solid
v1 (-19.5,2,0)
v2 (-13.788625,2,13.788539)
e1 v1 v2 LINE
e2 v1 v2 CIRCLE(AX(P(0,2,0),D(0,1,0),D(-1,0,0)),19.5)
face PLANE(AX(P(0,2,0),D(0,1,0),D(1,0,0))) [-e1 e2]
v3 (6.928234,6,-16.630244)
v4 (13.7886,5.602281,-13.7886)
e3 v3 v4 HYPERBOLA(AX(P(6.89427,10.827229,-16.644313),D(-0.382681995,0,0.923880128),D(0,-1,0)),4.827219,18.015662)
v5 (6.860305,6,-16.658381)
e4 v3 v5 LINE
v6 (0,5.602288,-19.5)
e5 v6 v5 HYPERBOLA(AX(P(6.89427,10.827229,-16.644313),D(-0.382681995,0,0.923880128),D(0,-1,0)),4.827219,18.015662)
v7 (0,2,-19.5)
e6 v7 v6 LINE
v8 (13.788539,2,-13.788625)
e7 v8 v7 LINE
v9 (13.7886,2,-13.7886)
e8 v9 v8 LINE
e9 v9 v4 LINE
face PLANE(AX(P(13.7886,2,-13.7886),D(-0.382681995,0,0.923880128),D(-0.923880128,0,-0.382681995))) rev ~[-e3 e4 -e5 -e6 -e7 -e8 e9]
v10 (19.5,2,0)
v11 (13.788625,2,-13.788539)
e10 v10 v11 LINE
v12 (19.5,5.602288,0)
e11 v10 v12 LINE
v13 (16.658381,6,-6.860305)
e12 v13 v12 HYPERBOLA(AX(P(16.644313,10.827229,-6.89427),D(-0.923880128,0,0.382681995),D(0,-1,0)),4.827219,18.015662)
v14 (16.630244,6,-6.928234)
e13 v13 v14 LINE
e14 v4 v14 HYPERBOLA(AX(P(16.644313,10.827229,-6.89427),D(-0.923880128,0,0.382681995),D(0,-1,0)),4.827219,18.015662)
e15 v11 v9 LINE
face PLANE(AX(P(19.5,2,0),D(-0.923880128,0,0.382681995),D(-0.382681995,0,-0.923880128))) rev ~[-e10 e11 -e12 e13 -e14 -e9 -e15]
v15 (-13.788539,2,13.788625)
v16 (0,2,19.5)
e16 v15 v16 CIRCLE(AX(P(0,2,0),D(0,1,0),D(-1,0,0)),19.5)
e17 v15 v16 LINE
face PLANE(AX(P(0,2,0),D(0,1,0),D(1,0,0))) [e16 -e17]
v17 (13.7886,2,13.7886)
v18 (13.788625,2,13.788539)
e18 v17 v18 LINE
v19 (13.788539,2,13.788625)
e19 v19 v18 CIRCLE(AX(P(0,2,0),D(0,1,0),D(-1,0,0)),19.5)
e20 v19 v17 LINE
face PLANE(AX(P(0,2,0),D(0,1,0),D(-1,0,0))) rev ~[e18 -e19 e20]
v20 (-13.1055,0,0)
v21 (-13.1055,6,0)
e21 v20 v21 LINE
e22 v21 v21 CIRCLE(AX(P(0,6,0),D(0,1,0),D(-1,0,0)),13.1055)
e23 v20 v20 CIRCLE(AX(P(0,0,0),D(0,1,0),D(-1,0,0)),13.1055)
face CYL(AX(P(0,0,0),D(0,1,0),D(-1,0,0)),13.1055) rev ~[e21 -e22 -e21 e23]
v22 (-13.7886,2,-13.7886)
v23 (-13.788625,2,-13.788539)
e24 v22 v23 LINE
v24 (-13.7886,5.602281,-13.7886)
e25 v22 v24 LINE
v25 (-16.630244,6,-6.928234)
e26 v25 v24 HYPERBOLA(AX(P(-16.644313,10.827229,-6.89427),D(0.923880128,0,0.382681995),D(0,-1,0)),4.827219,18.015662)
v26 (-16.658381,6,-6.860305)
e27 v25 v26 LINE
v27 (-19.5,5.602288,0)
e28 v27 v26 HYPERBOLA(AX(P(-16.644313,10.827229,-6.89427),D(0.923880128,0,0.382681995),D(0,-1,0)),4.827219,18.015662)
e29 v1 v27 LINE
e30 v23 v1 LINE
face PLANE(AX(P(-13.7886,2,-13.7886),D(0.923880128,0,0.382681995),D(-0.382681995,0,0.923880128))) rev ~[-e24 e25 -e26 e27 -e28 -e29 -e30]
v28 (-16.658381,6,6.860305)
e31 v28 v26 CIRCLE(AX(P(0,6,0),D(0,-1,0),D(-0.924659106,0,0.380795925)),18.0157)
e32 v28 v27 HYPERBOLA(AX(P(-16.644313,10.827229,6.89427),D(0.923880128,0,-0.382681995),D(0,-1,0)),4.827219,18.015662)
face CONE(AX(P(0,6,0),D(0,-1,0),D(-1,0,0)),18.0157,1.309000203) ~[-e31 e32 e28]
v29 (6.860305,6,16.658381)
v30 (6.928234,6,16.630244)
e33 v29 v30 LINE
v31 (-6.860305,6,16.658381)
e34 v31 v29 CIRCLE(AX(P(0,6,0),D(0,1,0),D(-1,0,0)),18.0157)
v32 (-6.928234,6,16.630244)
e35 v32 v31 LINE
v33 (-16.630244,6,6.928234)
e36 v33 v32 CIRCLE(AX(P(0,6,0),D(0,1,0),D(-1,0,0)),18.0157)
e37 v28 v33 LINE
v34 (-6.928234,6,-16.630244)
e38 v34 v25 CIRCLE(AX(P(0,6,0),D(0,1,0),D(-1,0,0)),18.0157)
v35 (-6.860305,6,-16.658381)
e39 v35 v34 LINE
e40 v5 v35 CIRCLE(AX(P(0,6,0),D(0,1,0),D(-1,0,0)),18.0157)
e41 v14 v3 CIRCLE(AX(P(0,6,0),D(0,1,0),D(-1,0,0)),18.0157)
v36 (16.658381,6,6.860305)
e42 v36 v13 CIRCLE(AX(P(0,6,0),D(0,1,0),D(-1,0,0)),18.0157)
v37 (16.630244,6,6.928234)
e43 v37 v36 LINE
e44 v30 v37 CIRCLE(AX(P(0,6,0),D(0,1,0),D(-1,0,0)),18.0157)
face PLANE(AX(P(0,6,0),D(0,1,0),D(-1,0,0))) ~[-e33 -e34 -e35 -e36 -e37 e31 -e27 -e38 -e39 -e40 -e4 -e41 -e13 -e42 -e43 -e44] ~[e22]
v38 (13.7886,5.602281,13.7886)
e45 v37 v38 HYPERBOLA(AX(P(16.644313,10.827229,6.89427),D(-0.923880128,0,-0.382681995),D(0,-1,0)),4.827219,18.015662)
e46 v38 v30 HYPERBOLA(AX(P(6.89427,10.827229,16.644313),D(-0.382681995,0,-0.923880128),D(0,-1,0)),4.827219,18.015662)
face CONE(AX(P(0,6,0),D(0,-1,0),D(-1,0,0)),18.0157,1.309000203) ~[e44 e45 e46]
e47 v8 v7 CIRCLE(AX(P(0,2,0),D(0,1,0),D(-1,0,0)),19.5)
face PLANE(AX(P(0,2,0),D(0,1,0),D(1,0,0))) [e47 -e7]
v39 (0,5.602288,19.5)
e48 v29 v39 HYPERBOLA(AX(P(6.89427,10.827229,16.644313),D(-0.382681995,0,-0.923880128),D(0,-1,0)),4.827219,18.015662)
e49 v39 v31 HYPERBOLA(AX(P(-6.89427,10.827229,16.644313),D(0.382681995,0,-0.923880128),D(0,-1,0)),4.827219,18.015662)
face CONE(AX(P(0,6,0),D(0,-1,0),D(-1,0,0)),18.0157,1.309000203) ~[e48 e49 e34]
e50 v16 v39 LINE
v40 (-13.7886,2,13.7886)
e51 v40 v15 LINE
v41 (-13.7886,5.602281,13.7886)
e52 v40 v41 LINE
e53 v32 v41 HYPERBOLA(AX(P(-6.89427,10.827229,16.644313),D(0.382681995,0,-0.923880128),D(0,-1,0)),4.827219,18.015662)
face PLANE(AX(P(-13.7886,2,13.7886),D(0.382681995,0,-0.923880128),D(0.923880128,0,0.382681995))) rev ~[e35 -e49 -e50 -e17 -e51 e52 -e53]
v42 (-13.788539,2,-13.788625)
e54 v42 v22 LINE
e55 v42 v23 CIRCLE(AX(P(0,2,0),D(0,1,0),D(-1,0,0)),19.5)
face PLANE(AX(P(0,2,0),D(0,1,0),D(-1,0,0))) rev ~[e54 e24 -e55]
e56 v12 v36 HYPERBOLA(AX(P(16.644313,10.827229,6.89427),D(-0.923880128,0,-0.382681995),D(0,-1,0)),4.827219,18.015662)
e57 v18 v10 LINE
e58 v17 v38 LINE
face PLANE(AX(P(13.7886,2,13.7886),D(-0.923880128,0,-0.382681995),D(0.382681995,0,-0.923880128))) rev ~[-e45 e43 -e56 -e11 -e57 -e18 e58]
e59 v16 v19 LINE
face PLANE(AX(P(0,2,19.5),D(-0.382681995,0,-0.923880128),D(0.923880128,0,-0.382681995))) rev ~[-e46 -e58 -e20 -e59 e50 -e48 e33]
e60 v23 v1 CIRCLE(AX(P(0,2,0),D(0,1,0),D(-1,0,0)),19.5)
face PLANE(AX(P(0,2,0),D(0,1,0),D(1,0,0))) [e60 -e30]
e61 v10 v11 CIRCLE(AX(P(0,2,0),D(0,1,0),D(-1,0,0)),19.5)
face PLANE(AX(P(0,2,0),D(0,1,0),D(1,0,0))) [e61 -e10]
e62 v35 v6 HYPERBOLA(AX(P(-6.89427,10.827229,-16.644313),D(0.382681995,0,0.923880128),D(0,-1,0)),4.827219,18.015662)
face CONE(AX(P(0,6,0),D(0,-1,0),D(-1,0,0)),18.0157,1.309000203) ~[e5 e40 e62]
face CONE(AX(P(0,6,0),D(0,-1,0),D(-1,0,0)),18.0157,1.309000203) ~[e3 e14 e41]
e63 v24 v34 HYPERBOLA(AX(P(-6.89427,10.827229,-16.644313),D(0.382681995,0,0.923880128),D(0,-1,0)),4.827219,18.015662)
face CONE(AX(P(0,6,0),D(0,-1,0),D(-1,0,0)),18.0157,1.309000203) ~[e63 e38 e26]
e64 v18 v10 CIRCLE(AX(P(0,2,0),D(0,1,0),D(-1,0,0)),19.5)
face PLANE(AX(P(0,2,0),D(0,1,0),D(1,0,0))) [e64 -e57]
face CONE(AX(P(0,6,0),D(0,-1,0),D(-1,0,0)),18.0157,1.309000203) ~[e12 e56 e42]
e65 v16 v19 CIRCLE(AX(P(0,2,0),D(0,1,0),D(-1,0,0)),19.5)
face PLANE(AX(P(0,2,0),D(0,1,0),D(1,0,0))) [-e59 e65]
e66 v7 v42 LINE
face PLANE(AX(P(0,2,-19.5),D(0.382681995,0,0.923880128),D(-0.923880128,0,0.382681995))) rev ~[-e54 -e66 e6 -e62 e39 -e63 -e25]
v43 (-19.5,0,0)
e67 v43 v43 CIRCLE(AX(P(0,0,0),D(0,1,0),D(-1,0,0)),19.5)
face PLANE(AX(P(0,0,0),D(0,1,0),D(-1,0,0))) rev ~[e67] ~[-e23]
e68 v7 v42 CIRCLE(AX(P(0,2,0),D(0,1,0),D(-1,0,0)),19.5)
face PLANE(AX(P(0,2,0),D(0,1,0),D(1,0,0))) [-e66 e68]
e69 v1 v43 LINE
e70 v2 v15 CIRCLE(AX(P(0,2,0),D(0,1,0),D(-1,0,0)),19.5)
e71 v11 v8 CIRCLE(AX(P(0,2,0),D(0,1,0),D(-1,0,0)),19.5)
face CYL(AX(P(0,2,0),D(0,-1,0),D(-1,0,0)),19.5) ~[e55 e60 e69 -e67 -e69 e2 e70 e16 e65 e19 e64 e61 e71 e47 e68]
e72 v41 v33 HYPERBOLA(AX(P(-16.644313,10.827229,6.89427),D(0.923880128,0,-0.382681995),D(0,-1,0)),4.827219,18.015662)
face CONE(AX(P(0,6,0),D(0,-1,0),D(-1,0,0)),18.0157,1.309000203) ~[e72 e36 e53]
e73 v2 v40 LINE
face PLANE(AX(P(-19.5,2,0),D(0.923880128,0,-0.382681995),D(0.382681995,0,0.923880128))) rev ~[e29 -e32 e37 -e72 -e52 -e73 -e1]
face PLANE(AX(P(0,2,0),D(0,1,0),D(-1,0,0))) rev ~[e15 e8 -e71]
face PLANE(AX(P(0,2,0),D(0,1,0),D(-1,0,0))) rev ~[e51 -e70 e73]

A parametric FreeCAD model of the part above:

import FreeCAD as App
import Part
import Sketcher

V = App.Vector
Q = App.Units.Quantity

doc = App.newDocument("Part")
params = doc.addObject("Spreadsheet::Sheet", "Params")
for row, (alias, value) in enumerate([
    ("sketch1_height", "2 mm"),
    ("sketch1_height2", "6 mm"),
    ("sketch1_width", "3.9 mm"),
    ("revolution_angle", "360 deg"),
    ("sketch2_diameter", "100 mm"),
    ("pocket1_length", "4 mm"),
], start=1):
    params.set(f"A{row}", alias)
    params.set(f"B{row}", "=" + value)
    params.setAlias(f"B{row}", alias)

body = doc.addObject("PartDesign::Body", "Body")

# Sketch on XY plane
sketch1 = body.newObject("Sketcher::SketchObject", "Sketch")
sketch1.AttachmentSupport = (doc.getObject("XY_Plane"), [""])
sketch1.MapMode = "FlatFace"
sketch1.addGeometry(Part.LineSegment(V(-18, 6, 0), V(-23.4, 4.6, 0)), False)
sketch1.addGeometry(Part.LineSegment(V(-23.4, 4.6, 0), V(-23.4, 2, 0)), False)
sketch1.addGeometry(Part.LineSegment(V(-23.4, 2, 0), V(-19.5, 2, 0)), False)
sketch1.addGeometry(Part.LineSegment(V(-19.5, 2, 0), V(-19.5, 0, 0)), False)
sketch1.addGeometry(Part.LineSegment(V(-19.5, 0, 0), V(-13.1, 0, 0)), False)
sketch1.addGeometry(Part.LineSegment(V(-13.1, 0, 0), V(-13.1, 6, 0)), False)
sketch1.addGeometry(Part.LineSegment(V(-13.1, 6, 0), V(-18, 6, 0)), False)
sketch1.addConstraint(Sketcher.Constraint("Coincident", 0, 2, 1, 1))
sketch1.addConstraint(Sketcher.Constraint("Coincident", 1, 2, 2, 1))
sketch1.addConstraint(Sketcher.Constraint("Coincident", 2, 2, 3, 1))
sketch1.addConstraint(Sketcher.Constraint("Coincident", 3, 2, 4, 1))
sketch1.addConstraint(Sketcher.Constraint("Coincident", 4, 2, 5, 1))
sketch1.addConstraint(Sketcher.Constraint("Coincident", 5, 2, 6, 1))
sketch1.addConstraint(Sketcher.Constraint("Coincident", 6, 2, 0, 1))
sketch1.addConstraint(Sketcher.Constraint("Vertical", 1))
sketch1.addConstraint(Sketcher.Constraint("Horizontal", 2))
sketch1.addConstraint(Sketcher.Constraint("Vertical", 3))
sketch1.addConstraint(Sketcher.Constraint("Horizontal", 4))
sketch1.addConstraint(Sketcher.Constraint("Vertical", 5))
sketch1.addConstraint(Sketcher.Constraint("Horizontal", 6))
sketch1.addConstraint(Sketcher.Constraint("PointOnObject", 3, 2, -1))
sketch1.addConstraint(Sketcher.Constraint("DistanceY", 3, 2, 3, 1, Q("2 mm")))
sketch1.addConstraint(Sketcher.Constraint("DistanceY", 5, 1, 5, 2, Q("6 mm")))
sketch1.addConstraint(Sketcher.Constraint("Angle", 0, Q("-165.0002 deg")))
sketch1.addConstraint(Sketcher.Constraint("DistanceX", 2, 1, 2, 2, Q("3.9 mm")))
sketch1.addConstraint(Sketcher.Constraint("DistanceX", 0, 2, -1, 1, Q("23.4 mm")))
sketch1.addConstraint(Sketcher.Constraint("DistanceX", 4, 1, 4, 2, Q("6.3945 mm")))
sketch1.addConstraint(Sketcher.Constraint("DistanceX", 6, 2, 6, 1, Q("4.9102 mm")))
sketch1.setExpression("Constraints[14]", "Params.sketch1_height")
sketch1.setExpression("Constraints[15]", "Params.sketch1_height2")
sketch1.setExpression("Constraints[17]", "Params.sketch1_width")
revolution = body.newObject("PartDesign::Revolution", "Revolution")
revolution.Profile = sketch1
revolution.ReferenceAxis = (sketch1, ["V_Axis"])
revolution.setExpression("Angle", "Params.revolution_angle")

# Sketch on XZ plane
sketch2 = body.newObject("Sketcher::SketchObject", "Sketch001")
sketch2.AttachmentSupport = (doc.getObject("XZ_Plane"), [""])
sketch2.MapMode = "FlatFace"
sketch2.AttachmentOffset = App.Placement(V(0, 0, -2), App.Rotation())
sketch2.addGeometry(Part.Circle(V(0, 0, 0), V(0, 0, 1), 50), False)
sketch2.addGeometry(Part.LineSegment(V(-14, 14, 0), V(-20, 0, 0)), False)
sketch2.addGeometry(Part.LineSegment(V(-20, 0, 0), V(-14, -14, 0)), False)
sketch2.addGeometry(Part.LineSegment(V(-14, -14, 0), V(0, -20, 0)), False)
sketch2.addGeometry(Part.LineSegment(V(0, -20, 0), V(14, -14, 0)), False)
sketch2.addGeometry(Part.LineSegment(V(14, -14, 0), V(20, 0, 0)), False)
sketch2.addGeometry(Part.LineSegment(V(20, 0, 0), V(14, 14, 0)), False)
sketch2.addGeometry(Part.LineSegment(V(14, 14, 0), V(0, 20, 0)), False)
sketch2.addGeometry(Part.LineSegment(V(0, 20, 0), V(-14, 14, 0)), False)
sketch2.addConstraint(Sketcher.Constraint("Coincident", 1, 2, 2, 1))
sketch2.addConstraint(Sketcher.Constraint("Coincident", 2, 2, 3, 1))
sketch2.addConstraint(Sketcher.Constraint("Coincident", 3, 2, 4, 1))
sketch2.addConstraint(Sketcher.Constraint("Coincident", 4, 2, 5, 1))
sketch2.addConstraint(Sketcher.Constraint("Coincident", 5, 2, 6, 1))
sketch2.addConstraint(Sketcher.Constraint("Coincident", 6, 2, 7, 1))
sketch2.addConstraint(Sketcher.Constraint("Coincident", 7, 2, 8, 1))
sketch2.addConstraint(Sketcher.Constraint("Coincident", 8, 2, 1, 1))
sketch2.addConstraint(Sketcher.Constraint("Coincident", 0, 3, -1, 1))
sketch2.addConstraint(Sketcher.Constraint("Symmetric", 1, 2, 5, 2, -1, 1))
sketch2.addConstraint(Sketcher.Constraint("Symmetric", 2, 2, 6, 2, -1, 1))
sketch2.addConstraint(Sketcher.Constraint("Symmetric", 3, 2, 7, 2, -1, 1))
sketch2.addConstraint(Sketcher.Constraint("Symmetric", 4, 2, 8, 2, -1, 1))
sketch2.addConstraint(Sketcher.Constraint("Symmetric", 2, 2, 4, 2, -2))
sketch2.addConstraint(Sketcher.Constraint("PointOnObject", 1, 2, -1))
sketch2.addConstraint(Sketcher.Constraint("PointOnObject", 3, 2, -2))
sketch2.addConstraint(Sketcher.Constraint("Perpendicular", 1, 3))
sketch2.addConstraint(Sketcher.Constraint("Equal", 2, 3))
sketch2.addConstraint(Sketcher.Constraint("Diameter", 0, Q("100 mm")))
sketch2.addConstraint(Sketcher.Constraint("Angle", 1, Q("-112.5 deg")))
sketch2.addConstraint(Sketcher.Constraint("DistanceX", 1, 2, 5, 2, Q("39 mm")))
sketch2.setExpression("Constraints[18]", "Params.sketch2_diameter")
pocket1 = body.newObject("PartDesign::Pocket", "Pocket")
pocket1.Profile = sketch2
pocket1.setExpression("Length", "Params.pocket1_length")

doc.recompute()
